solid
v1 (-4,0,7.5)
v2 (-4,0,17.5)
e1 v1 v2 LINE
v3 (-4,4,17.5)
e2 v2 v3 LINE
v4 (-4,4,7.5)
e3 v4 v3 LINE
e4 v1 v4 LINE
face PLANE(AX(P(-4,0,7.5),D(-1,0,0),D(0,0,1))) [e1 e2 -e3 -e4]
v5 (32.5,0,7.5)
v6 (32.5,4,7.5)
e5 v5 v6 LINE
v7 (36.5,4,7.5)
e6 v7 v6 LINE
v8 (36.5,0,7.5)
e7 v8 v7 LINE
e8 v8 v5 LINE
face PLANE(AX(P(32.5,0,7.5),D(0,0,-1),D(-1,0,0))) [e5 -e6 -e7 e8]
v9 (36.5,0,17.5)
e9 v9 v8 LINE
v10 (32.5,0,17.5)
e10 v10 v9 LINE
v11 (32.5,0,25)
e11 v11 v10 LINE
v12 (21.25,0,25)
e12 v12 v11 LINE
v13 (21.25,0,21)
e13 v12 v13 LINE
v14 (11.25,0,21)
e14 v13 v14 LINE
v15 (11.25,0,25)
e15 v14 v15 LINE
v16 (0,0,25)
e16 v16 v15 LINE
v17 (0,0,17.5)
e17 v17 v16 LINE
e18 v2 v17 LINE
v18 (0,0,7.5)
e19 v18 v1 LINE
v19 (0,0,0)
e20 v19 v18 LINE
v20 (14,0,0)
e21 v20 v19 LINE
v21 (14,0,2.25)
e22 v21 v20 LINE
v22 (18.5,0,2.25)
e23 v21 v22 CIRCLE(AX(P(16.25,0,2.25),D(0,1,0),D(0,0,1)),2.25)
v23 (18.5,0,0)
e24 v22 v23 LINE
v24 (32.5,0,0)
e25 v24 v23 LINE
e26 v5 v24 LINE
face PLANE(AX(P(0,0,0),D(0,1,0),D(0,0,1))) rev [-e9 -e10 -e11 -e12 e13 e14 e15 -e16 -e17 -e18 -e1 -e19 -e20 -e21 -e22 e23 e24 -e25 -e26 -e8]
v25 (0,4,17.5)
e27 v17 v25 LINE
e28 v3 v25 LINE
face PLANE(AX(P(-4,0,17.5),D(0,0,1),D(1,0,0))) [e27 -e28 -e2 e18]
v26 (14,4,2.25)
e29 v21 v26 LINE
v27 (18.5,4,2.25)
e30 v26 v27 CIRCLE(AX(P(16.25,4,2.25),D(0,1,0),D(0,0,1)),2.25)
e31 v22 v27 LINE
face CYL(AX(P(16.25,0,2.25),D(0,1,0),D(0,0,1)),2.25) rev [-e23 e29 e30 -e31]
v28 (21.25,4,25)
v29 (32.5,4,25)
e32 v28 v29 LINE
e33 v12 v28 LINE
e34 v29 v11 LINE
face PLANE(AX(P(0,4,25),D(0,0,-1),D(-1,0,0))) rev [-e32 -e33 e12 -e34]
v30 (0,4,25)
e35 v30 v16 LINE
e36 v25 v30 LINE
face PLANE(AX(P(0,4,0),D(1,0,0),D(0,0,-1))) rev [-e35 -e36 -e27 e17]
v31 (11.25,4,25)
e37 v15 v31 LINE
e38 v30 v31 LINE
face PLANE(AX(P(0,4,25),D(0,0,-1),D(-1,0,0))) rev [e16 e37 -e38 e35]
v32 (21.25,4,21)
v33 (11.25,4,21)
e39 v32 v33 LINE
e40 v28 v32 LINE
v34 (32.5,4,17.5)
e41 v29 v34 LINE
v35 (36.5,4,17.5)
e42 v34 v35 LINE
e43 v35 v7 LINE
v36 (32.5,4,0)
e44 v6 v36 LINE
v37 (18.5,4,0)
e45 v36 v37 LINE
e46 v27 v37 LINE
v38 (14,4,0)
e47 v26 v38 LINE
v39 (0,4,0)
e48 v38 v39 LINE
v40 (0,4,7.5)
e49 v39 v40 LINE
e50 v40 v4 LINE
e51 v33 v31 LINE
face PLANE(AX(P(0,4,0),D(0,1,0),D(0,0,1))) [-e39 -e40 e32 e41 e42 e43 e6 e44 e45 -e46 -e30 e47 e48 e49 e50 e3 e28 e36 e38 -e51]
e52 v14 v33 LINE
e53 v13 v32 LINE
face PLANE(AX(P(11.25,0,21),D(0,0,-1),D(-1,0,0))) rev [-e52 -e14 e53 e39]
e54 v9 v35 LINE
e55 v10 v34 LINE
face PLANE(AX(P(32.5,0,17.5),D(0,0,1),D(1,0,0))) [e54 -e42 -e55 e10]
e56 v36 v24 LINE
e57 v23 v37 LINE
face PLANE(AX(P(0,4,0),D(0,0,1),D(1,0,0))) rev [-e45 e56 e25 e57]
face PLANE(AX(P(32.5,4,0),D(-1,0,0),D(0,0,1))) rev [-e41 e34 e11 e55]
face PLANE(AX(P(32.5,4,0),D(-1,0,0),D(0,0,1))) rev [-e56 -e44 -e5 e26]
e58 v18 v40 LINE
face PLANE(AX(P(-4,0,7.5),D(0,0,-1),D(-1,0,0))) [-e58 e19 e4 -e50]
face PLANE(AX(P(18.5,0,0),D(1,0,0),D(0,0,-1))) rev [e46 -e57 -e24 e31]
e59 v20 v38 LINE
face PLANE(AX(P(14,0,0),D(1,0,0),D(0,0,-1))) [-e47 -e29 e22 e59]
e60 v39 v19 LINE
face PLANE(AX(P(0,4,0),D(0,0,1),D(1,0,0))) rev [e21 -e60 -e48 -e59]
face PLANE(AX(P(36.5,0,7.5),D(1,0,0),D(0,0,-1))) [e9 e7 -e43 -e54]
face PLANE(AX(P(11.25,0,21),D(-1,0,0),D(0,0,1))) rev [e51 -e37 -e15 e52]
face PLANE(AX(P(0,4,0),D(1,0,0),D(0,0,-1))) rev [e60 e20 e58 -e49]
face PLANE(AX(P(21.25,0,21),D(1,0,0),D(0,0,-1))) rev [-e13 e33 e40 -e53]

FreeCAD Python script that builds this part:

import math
import FreeCAD as App
import Part
import Sketcher
from FreeCAD import Vector
Q = App.Units.Quantity

doc = App.newDocument("Part")
body = doc.addObject("PartDesign::Body", "Body")

# Sketch on XZ plane
sketch1 = body.newObject("Sketcher::SketchObject", "Sketch")
sketch1.AttachmentSupport = (doc.getObject("XZ_Plane"), [""])
sketch1.MapMode = "FlatFace"
sketch1.addGeometry([
    Part.LineSegment(Vector(0, 0, 0), Vector(0, 25, 0)),
    Part.LineSegment(Vector(0, 25, 0), Vector(32.5, 25, 0)),
    Part.LineSegment(Vector(32.5, 25, 0), Vector(32.5, 0, 0)),
    Part.LineSegment(Vector(32.5, 0, 0), Vector(0, 0, 0)),
], False)
sketch1.addConstraint([
    Sketcher.Constraint("Coincident", 0, 2, 1, 1),
    Sketcher.Constraint("Coincident", 1, 2, 2, 1),
    Sketcher.Constraint("Coincident", 2, 2, 3, 1),
    Sketcher.Constraint("Coincident", 3, 2, 0, 1),
    Sketcher.Constraint("Vertical", 0),
    Sketcher.Constraint("Horizontal", 1),
    Sketcher.Constraint("Vertical", 2),
    Sketcher.Constraint("Horizontal", 3),
    Sketcher.Constraint("Coincident", 3, 2, -1, 1),
    Sketcher.Constraint("DistanceY", 0, 1, 0, 2, Q("25 mm")),
    Sketcher.Constraint("DistanceX", 1, 1, 1, 2, Q("32.5 mm")),
])
pad1 = body.newObject("PartDesign::Pad", "Pad")
pad1.Profile = sketch1
pad1.Length = 4
pad1.Reversed = True

# Sketch on XZ plane
sketch2 = body.newObject("Sketcher::SketchObject", "Sketch001")
sketch2.AttachmentSupport = (doc.getObject("XZ_Plane"), [""])
sketch2.MapMode = "FlatFace"
sketch2.AttachmentOffset = App.Placement(Vector(0, 0, -4), App.Rotation())
sketch2.addGeometry([
    Part.ArcOfCircle(Part.Circle(Vector(16.25, 2.25, 0), Vector(0, 0, 1), 2.25), math.radians(0), math.radians(180)),
    Part.LineSegment(Vector(18.5, 2.25, 0), Vector(18.5, 0, 0)),
    Part.LineSegment(Vector(18.5, 0, 0), Vector(14, 0, 0)),
    Part.LineSegment(Vector(14, 0, 0), Vector(14, 2.25, 0)),
], False)
sketch2.addConstraint([
    Sketcher.Constraint("Tangent", 0, 1, 1, 1),
    Sketcher.Constraint("Coincident", 1, 2, 2, 1),
    Sketcher.Constraint("Coincident", 2, 2, 3, 1),
    Sketcher.Constraint("Tangent", 3, 2, 0, 2),
    Sketcher.Constraint("Vertical", 1),
    Sketcher.Constraint("Horizontal", 2),
    Sketcher.Constraint("Vertical", 3),
    Sketcher.Constraint("PointOnObject", 1, 2, -1),
    Sketcher.Constraint("Radius", 0, Q("2.25 mm")),
    Sketcher.Constraint("DistanceX", -1, 1, 2, 2, Q("14 mm")),
    Sketcher.Constraint("DistanceY", 1, 2, 1, 1, Q("2.25 mm")),
])
pocket1 = body.newObject("PartDesign::Pocket", "Pocket")
pocket1.Profile = sketch2
pocket1.Type = "ThroughAll"
pocket1.Reversed = True

# Sketch on XZ plane
sketch3 = body.newObject("Sketcher::SketchObject", "Sketch002")
sketch3.AttachmentSupport = (doc.getObject("XZ_Plane"), [""])
sketch3.MapMode = "FlatFace"
sketch3.AttachmentOffset = App.Placement(Vector(0, 0, -4), App.Rotation())
sketch3.addGeometry([
    Part.LineSegment(Vector(-4, 7.5, 0), Vector(-4, 17.5, 0)),  # 0
    Part.LineSegment(Vector(-4, 17.5, 0), Vector(0, 17.5, 0)),  # 1
    Part.LineSegment(Vector(0, 17.5, 0), Vector(0, 7.5, 0)),  # 2
    Part.LineSegment(Vector(0, 7.5, 0), Vector(-4, 7.5, 0)),  # 3
    Part.LineSegment(Vector(32.5, 7.5, 0), Vector(32.5, 17.5, 0)),  # 4
    Part.LineSegment(Vector(32.5, 17.5, 0), Vector(36.5, 17.5, 0)),  # 5
    Part.LineSegment(Vector(36.5, 17.5, 0), Vector(36.5, 7.5, 0)),  # 6
    Part.LineSegment(Vector(36.5, 7.5, 0), Vector(32.5, 7.5, 0)),  # 7
], False)
sketch3.addConstraint([
    Sketcher.Constraint("Coincident", 0, 2, 1, 1),
    Sketcher.Constraint("Coincident", 1, 2, 2, 1),
    Sketcher.Constraint("Coincident", 2, 2, 3, 1),
    Sketcher.Constraint("Coincident", 3, 2, 0, 1),
    Sketcher.Constraint("Coincident", 4, 2, 5, 1),
    Sketcher.Constraint("Coincident", 5, 2, 6, 1),
    Sketcher.Constraint("Coincident", 6, 2, 7, 1),
    Sketcher.Constraint("Coincident", 7, 2, 4, 1),
    Sketcher.Constraint("Vertical", 0),
    Sketcher.Constraint("Horizontal", 1),
    Sketcher.Constraint("Vertical", 2),
    Sketcher.Constraint("Horizontal", 3),
    Sketcher.Constraint("Vertical", 4),
    Sketcher.Constraint("Horizontal", 5),
    Sketcher.Constraint("Vertical", 6),
    Sketcher.Constraint("Horizontal", 7),
    Sketcher.Constraint("PointOnObject", 1, 2, -2),
    Sketcher.Constraint("Horizontal", 1, 2, 4, 2),
    Sketcher.Constraint("Horizontal", 3, 2, 6, 2),
    Sketcher.Constraint("Equal", 3, 5),
    Sketcher.Constraint("DistanceX", 1, 1, 1, 2, Q("4 mm")),
    Sketcher.Constraint("DistanceY", 0, 1, 0, 2, Q("10 mm")),
    Sketcher.Constraint("DistanceY", -1, 1, 0, 2, Q("17.5 mm")),
    Sketcher.Constraint("DistanceX", -1, 1, 4, 2, Q("32.5 mm")),
])
pad2 = body.newObject("PartDesign::Pad", "Pad001")
pad2.Profile = sketch3
pad2.Type = "UpToLast"

# Sketch on XZ plane
sketch4 = body.newObject("Sketcher::SketchObject", "Sketch003")
sketch4.AttachmentSupport = (doc.getObject("XZ_Plane"), [""])
sketch4.MapMode = "FlatFace"
sketch4.AttachmentOffset = App.Placement(Vector(0, 0, -4), App.Rotation())
sketch4.addGeometry([
    Part.LineSegment(Vector(11.25, 21, 0), Vector(11.25, 25, 0)),
    Part.LineSegment(Vector(11.25, 25, 0), Vector(21.25, 25, 0)),
    Part.LineSegment(Vector(21.25, 25, 0), Vector(21.25, 21, 0)),
    Part.LineSegment(Vector(21.25, 21, 0), Vector(11.25, 21, 0)),
], False)
sketch4.addConstraint([
    Sketcher.Constraint("Coincident", 0, 2, 1, 1),
    Sketcher.Constraint("Coincident", 1, 2, 2, 1),
    Sketcher.Constraint("Coincident", 2, 2, 3, 1),
    Sketcher.Constraint("Coincident", 3, 2, 0, 1),
    Sketcher.Constraint("Vertical", 0),
    Sketcher.Constraint("Horizontal", 1),
    Sketcher.Constraint("Vertical", 2),
    Sketcher.Constraint("Horizontal", 3),
    Sketcher.Constraint("DistanceX", 1, 1, 1, 2, Q("10 mm")),
    Sketcher.Constraint("DistanceY", 0, 1, 0, 2, Q("4 mm")),
    Sketcher.Constraint("DistanceY", -1, 1, 0, 2, Q("25 mm")),
    Sketcher.Constraint("DistanceX", -1, 1, 0, 2, Q("11.25 mm")),
])
pocket2 = body.newObject("PartDesign::Pocket", "Pocket001")
pocket2.Profile = sketch4
pocket2.Type = "ThroughAll"
pocket2.Reversed = True

doc.recompute()
